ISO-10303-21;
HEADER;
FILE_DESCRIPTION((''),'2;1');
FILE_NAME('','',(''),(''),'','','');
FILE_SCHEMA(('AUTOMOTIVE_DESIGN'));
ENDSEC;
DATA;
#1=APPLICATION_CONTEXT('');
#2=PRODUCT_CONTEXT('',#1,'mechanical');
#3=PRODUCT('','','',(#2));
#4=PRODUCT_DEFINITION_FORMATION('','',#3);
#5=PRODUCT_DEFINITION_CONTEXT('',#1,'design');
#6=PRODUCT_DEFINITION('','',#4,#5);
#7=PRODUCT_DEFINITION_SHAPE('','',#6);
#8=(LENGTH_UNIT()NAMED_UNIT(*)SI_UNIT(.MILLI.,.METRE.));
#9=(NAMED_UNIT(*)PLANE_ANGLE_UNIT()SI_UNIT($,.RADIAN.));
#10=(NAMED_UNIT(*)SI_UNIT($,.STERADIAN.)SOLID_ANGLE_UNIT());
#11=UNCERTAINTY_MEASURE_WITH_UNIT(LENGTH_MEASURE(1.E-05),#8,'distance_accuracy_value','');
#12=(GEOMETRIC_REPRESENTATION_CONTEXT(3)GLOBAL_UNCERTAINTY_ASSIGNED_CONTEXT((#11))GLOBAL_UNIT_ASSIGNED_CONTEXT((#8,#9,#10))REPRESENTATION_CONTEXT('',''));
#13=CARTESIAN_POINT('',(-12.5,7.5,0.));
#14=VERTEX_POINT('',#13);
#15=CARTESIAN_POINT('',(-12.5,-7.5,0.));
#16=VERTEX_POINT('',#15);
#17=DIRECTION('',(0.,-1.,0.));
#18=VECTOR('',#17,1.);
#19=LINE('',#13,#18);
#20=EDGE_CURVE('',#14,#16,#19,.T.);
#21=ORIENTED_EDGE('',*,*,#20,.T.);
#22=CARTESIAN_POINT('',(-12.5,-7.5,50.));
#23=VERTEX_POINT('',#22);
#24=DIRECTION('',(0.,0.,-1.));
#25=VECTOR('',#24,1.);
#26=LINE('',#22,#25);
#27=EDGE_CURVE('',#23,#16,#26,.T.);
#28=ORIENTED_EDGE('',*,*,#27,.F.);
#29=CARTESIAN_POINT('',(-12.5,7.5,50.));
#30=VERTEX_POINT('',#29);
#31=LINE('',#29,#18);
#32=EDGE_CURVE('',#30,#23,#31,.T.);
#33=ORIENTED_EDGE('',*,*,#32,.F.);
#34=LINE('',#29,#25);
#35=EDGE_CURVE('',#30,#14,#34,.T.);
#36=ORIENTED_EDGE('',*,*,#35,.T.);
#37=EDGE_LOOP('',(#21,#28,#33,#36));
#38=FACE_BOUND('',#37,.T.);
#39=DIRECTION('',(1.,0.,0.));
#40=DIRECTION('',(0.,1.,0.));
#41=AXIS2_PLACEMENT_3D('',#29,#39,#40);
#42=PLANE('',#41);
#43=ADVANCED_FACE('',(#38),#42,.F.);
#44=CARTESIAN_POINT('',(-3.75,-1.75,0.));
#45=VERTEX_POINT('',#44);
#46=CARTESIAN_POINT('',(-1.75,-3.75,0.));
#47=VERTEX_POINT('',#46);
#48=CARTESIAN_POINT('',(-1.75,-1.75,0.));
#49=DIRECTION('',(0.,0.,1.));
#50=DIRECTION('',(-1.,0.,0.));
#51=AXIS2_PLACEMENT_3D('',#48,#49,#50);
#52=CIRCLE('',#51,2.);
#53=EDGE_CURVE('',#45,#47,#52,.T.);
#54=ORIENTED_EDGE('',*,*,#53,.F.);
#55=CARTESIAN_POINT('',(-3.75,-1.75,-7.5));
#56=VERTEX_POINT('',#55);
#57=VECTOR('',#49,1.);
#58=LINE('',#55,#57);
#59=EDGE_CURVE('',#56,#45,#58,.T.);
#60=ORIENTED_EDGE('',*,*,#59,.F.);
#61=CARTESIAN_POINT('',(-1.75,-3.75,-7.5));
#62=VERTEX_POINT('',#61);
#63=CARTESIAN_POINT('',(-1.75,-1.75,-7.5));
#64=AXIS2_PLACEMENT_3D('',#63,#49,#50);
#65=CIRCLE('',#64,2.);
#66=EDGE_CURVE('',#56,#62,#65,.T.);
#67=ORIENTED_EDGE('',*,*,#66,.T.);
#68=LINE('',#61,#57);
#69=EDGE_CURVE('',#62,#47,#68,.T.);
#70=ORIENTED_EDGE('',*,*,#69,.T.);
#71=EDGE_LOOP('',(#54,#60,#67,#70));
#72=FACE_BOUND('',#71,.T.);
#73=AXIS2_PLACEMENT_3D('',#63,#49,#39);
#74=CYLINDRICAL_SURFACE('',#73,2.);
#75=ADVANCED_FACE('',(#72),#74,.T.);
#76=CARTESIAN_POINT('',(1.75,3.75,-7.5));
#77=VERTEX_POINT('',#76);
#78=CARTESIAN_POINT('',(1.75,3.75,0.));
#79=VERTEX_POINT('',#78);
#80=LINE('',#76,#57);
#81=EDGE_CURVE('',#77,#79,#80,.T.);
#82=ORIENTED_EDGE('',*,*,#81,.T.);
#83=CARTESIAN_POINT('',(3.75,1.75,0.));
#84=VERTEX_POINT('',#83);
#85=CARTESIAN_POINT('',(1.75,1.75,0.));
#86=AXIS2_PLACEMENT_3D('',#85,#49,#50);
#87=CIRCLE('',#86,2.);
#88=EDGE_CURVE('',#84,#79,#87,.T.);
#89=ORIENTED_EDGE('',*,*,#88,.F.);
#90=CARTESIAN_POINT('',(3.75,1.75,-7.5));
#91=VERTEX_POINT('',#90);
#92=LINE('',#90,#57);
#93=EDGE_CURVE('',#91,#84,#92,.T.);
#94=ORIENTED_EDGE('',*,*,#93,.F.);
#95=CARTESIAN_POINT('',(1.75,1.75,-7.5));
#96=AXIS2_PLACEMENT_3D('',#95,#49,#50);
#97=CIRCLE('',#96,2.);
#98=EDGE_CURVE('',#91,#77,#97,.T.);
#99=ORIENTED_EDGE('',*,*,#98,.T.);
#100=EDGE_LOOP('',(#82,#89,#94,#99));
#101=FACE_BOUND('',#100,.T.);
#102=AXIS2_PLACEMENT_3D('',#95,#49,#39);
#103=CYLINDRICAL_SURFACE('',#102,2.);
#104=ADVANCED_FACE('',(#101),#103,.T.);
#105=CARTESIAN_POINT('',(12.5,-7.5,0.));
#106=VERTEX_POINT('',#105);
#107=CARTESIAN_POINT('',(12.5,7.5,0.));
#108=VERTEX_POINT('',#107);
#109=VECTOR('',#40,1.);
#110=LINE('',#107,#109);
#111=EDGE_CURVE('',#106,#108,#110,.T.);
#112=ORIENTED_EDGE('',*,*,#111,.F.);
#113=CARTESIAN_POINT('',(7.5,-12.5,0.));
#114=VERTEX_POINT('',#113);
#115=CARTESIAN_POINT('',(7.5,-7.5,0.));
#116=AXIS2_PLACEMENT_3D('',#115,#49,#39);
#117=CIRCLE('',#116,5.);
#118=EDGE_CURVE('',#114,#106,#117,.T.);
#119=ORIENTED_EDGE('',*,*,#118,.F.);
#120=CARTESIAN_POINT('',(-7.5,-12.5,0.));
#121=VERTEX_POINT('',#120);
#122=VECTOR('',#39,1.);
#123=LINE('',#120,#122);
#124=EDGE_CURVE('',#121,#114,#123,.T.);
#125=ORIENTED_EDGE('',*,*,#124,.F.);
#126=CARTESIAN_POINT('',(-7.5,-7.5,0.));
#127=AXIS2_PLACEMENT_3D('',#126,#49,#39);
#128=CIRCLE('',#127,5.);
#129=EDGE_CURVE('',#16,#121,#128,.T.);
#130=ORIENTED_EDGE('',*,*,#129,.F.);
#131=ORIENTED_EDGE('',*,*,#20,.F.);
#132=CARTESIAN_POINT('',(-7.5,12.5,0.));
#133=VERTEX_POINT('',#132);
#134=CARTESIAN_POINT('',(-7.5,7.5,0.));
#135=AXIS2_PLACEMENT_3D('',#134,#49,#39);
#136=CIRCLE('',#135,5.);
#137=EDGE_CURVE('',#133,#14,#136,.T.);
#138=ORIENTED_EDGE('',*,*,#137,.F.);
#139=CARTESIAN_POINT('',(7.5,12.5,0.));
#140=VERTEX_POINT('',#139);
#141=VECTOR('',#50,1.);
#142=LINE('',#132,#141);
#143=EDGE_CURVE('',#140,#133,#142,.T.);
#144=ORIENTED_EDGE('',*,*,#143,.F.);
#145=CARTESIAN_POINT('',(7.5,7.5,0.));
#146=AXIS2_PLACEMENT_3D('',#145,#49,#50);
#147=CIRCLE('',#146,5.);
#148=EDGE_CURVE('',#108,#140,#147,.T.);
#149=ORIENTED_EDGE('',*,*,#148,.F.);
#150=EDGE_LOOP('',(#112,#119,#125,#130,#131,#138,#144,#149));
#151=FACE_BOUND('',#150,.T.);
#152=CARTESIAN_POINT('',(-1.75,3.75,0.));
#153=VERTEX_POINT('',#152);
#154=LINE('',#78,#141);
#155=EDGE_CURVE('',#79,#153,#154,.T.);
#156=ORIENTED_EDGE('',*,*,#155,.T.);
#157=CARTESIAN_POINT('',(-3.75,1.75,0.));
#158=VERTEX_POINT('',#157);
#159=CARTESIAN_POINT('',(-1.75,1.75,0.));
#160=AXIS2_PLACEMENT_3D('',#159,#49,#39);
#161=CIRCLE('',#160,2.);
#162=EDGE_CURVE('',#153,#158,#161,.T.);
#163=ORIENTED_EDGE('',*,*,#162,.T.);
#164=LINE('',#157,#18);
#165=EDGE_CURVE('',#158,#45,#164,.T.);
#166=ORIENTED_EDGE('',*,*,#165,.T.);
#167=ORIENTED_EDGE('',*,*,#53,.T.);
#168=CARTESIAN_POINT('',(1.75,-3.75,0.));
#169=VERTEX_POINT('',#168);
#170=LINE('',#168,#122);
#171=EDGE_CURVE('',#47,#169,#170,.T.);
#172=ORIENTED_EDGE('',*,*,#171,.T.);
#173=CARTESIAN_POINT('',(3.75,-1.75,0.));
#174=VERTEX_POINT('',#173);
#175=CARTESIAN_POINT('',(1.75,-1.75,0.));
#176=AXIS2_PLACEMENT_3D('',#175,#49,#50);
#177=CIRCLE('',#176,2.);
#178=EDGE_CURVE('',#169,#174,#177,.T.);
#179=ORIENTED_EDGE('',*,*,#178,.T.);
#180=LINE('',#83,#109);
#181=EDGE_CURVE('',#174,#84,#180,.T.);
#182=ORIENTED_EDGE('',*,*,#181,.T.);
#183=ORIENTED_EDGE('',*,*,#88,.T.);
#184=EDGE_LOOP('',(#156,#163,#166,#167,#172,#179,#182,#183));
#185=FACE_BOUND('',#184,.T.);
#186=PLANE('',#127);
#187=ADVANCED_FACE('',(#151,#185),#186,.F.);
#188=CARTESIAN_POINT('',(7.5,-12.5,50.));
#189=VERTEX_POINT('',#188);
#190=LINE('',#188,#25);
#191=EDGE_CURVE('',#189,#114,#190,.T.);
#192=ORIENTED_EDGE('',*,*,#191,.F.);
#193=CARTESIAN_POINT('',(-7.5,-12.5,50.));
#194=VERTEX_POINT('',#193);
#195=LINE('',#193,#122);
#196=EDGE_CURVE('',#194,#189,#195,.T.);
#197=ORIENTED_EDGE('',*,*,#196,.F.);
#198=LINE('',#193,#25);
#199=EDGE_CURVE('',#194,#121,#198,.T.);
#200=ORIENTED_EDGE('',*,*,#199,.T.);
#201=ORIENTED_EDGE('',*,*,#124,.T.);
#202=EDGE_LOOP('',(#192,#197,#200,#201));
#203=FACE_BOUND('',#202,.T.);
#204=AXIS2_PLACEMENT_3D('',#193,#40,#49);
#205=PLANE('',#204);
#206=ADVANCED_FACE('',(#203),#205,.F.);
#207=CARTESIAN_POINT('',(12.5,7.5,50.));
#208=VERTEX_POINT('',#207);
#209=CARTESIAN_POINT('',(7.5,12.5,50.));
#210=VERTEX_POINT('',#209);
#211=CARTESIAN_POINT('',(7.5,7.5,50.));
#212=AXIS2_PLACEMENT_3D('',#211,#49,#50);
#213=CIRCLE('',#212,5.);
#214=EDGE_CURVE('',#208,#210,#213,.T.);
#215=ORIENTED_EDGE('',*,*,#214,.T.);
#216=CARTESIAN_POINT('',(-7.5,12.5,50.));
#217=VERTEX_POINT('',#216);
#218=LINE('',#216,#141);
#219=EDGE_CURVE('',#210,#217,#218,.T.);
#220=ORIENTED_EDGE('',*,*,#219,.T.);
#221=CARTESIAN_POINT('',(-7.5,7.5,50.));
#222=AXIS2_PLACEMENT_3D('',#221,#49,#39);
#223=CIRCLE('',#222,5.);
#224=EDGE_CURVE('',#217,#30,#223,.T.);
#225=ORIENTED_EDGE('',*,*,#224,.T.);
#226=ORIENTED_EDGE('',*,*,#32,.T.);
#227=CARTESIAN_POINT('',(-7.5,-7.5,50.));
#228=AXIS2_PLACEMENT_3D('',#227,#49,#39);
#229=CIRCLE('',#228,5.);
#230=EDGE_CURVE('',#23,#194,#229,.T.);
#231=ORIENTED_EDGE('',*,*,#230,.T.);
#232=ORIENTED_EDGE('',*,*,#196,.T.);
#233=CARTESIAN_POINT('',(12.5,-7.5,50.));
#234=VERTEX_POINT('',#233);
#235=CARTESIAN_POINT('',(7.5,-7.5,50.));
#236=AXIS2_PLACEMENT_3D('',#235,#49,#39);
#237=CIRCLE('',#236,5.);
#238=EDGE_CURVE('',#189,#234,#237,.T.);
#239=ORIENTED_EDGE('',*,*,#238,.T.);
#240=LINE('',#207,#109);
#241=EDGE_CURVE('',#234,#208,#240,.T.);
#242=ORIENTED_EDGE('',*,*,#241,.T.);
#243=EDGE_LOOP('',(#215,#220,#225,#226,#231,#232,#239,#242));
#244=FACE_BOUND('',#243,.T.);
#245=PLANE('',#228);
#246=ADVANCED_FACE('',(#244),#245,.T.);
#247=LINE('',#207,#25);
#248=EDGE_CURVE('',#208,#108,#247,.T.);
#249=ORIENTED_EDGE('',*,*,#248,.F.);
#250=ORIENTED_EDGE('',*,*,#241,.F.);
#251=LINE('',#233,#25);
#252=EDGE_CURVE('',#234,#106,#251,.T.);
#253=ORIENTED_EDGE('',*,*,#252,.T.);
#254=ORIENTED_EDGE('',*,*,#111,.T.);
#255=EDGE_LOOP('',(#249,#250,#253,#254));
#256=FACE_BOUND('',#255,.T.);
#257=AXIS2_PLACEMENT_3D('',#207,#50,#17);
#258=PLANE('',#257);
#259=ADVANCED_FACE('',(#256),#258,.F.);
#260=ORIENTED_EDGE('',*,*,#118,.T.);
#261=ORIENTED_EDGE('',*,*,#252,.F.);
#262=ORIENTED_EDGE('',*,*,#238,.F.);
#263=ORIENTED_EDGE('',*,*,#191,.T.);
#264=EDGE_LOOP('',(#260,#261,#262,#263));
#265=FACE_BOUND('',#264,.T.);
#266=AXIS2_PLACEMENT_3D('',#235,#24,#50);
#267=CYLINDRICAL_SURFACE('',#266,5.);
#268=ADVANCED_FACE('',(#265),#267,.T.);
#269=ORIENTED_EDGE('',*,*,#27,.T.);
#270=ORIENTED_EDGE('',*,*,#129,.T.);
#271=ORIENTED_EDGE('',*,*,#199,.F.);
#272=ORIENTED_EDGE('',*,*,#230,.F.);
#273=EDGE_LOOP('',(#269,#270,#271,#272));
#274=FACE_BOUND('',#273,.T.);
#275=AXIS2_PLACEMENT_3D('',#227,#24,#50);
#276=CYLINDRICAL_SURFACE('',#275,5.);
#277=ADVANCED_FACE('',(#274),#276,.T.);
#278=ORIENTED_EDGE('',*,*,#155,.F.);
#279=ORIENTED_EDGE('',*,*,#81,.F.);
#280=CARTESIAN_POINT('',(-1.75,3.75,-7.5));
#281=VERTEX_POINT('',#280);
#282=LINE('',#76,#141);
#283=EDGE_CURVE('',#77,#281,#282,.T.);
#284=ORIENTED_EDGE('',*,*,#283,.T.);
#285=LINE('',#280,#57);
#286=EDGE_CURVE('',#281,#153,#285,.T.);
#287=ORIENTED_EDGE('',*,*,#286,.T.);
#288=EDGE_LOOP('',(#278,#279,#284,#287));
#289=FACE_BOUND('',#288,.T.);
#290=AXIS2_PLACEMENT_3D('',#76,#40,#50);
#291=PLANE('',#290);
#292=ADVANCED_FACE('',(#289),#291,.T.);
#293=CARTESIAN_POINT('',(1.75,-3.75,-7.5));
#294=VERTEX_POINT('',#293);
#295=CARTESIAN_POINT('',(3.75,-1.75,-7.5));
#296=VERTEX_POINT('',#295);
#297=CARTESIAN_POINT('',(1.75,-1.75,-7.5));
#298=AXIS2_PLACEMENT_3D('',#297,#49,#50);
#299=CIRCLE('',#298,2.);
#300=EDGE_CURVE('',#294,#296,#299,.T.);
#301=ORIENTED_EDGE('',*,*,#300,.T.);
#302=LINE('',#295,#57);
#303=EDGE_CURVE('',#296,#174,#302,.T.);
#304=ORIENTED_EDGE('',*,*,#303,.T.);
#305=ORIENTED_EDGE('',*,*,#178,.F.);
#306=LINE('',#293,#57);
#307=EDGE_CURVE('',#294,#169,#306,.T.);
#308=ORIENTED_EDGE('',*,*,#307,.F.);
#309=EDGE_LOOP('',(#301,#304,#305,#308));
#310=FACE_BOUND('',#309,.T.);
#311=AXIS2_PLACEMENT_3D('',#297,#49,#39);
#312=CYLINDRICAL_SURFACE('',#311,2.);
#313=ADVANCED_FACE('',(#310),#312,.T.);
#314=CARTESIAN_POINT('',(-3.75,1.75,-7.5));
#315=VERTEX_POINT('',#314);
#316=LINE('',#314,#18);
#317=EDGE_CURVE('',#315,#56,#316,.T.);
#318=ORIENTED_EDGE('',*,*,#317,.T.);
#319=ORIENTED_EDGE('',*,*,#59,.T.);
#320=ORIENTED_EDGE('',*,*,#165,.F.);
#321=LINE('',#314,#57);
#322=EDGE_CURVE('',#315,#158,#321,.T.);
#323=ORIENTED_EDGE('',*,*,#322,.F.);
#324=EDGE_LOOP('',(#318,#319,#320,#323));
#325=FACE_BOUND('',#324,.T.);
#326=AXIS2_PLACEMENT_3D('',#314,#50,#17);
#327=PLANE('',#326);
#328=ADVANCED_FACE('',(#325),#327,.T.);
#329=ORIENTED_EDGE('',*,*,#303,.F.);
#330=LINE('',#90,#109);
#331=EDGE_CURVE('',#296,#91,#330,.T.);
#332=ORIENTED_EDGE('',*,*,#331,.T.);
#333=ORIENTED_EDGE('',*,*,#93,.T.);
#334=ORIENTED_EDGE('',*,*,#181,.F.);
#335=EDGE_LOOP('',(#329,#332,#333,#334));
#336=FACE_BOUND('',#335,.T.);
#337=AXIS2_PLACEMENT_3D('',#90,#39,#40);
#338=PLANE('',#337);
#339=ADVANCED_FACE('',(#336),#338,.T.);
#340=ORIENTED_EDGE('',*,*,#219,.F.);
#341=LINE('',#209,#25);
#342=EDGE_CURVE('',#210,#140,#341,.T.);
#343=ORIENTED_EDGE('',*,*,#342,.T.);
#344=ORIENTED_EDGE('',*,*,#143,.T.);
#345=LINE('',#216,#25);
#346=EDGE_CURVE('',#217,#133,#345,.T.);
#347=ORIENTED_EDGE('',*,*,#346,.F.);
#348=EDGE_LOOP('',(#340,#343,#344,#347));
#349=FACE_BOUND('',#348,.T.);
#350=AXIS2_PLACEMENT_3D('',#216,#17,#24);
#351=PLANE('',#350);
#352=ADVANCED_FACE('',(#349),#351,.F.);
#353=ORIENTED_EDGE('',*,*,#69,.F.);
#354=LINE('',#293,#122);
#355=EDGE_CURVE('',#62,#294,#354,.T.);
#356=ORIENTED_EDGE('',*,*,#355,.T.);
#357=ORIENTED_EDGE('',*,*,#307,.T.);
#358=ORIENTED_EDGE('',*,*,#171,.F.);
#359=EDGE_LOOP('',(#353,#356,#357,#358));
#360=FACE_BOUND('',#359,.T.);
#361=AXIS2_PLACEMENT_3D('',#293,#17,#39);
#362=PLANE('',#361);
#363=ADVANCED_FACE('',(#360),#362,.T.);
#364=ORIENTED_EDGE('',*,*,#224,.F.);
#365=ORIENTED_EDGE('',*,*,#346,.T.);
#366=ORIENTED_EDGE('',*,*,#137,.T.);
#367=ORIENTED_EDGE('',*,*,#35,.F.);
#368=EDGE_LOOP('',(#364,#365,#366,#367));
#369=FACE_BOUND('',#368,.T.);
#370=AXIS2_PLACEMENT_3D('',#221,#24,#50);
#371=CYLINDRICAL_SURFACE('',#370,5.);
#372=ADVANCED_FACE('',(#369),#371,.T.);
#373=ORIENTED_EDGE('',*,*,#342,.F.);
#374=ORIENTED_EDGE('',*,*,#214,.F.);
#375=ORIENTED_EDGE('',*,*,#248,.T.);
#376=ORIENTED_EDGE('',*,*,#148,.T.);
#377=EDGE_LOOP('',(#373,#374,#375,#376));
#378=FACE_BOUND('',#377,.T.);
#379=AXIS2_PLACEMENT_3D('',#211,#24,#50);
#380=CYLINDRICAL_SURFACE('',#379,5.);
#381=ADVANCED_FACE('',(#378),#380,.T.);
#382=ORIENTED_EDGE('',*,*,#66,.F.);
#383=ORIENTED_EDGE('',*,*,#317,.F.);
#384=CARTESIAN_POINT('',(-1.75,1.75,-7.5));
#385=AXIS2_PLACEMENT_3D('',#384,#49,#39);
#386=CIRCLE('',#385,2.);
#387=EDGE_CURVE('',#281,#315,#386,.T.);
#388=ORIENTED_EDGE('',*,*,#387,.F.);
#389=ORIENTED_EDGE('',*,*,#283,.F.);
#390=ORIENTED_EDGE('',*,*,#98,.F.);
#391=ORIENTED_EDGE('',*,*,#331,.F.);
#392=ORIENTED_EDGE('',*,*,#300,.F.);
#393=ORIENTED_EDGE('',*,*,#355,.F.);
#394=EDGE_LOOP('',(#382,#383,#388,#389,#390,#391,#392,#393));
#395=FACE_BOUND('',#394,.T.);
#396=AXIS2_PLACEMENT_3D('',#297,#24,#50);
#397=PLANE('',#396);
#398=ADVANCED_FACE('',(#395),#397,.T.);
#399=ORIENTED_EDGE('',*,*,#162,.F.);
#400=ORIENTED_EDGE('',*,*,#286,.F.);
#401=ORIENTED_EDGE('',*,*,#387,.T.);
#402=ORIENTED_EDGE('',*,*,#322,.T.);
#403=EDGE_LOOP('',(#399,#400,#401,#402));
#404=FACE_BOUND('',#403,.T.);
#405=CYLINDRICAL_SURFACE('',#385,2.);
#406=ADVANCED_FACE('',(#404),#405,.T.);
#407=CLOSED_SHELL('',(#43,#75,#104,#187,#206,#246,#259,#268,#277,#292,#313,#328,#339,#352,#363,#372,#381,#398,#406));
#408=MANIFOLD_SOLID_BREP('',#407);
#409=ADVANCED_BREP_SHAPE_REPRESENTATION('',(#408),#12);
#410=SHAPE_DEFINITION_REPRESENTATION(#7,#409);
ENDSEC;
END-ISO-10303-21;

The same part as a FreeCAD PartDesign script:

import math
import FreeCAD as App
import Part
import Sketcher

doc = App.newDocument("Part")
body = doc.addObject("PartDesign::Body", "Body")

# Sketch on XY plane
sketch1 = doc.addObject("Sketcher::SketchObject", "Sketch")
body.addObject(sketch1)
sketch1.AttachmentSupport = (doc.XY_Plane, [""])
sketch1.MapMode = "FlatFace"
sketch1.addGeometry([
    Part.LineSegment(App.Vector(7.5, 12.5, 0), App.Vector(-7.5, 12.5, 0)),  # 0
    Part.ArcOfCircle(Part.Circle(App.Vector(-7.5, 7.5, 0), App.Vector(0, 0, 1), 5), math.radians(90), math.radians(180)),  # 1
    Part.LineSegment(App.Vector(-12.5, 7.5, 0), App.Vector(-12.5, -7.5, 0)),  # 2
    Part.ArcOfCircle(Part.Circle(App.Vector(-7.5, -7.5, 0), App.Vector(0, 0, 1), 5), math.radians(180), math.radians(270)),  # 3
    Part.LineSegment(App.Vector(-7.5, -12.5, 0), App.Vector(7.5, -12.5, 0)),  # 4
    Part.ArcOfCircle(Part.Circle(App.Vector(7.5, -7.5, 0), App.Vector(0, 0, 1), 5), math.radians(-90), math.radians(0)),  # 5
    Part.LineSegment(App.Vector(12.5, -7.5, 0), App.Vector(12.5, 7.5, 0)),  # 6
    Part.ArcOfCircle(Part.Circle(App.Vector(7.5, 7.5, 0), App.Vector(0, 0, 1), 5), math.radians(0), math.radians(90)),  # 7
], False)
sketch1.addConstraint([
    Sketcher.Constraint("Tangent", 0, 2, 1, 1),
    Sketcher.Constraint("Tangent", 1, 2, 2, 1),
    Sketcher.Constraint("Tangent", 2, 2, 3, 1),
    Sketcher.Constraint("Tangent", 3, 2, 4, 1),
    Sketcher.Constraint("Tangent", 4, 2, 5, 1),
    Sketcher.Constraint("Tangent", 5, 2, 6, 1),
    Sketcher.Constraint("Tangent", 6, 2, 7, 1),
    Sketcher.Constraint("Tangent", 7, 2, 0, 1),
    Sketcher.Constraint("Horizontal", 0),
    Sketcher.Constraint("Vertical", 2),
    Sketcher.Constraint("Horizontal", 4),
    Sketcher.Constraint("Vertical", 6),
    Sketcher.Constraint("Equal", 1, 3),
    Sketcher.Constraint("Equal", 3, 5),
    Sketcher.Constraint("Equal", 5, 7),
    Sketcher.Constraint("Symmetric", 1, 3, 5, 3, -1, 1),
    Sketcher.Constraint("Equal", 4, 2),
    Sketcher.Constraint("Radius", 1, 5.0),
    Sketcher.Constraint("DistanceX", 0, 2, 0, 1, 15.0),
])
pad1 = doc.addObject("PartDesign::Pad", "Pad")
body.addObject(pad1)
pad1.Profile = sketch1
pad1.Length = 50

# Sketch on XY plane
sketch2 = doc.addObject("Sketcher::SketchObject", "Sketch001")
body.addObject(sketch2)
sketch2.AttachmentSupport = (doc.XY_Plane, [""])
sketch2.MapMode = "FlatFace"
sketch2.addGeometry([
    Part.LineSegment(App.Vector(1.75, 3.75, 0), App.Vector(-1.75, 3.75, 0)),  # 0
    Part.ArcOfCircle(Part.Circle(App.Vector(-1.75, 1.75, 0), App.Vector(0, 0, 1), 2), math.radians(90), math.radians(180)),  # 1
    Part.LineSegment(App.Vector(-3.75, 1.75, 0), App.Vector(-3.75, -1.75, 0)),  # 2
    Part.ArcOfCircle(Part.Circle(App.Vector(-1.75, -1.75, 0), App.Vector(0, 0, 1), 2), math.radians(-180), math.radians(-90)),  # 3
    Part.LineSegment(App.Vector(-1.75, -3.75, 0), App.Vector(1.75, -3.75, 0)),  # 4
    Part.ArcOfCircle(Part.Circle(App.Vector(1.75, -1.75, 0), App.Vector(0, 0, 1), 2), math.radians(-90), math.radians(0)),  # 5
    Part.LineSegment(App.Vector(3.75, -1.75, 0), App.Vector(3.75, 1.75, 0)),  # 6
    Part.ArcOfCircle(Part.Circle(App.Vector(1.75, 1.75, 0), App.Vector(0, 0, 1), 2), math.radians(0), math.radians(90)),  # 7
], False)
sketch2.addConstraint([
    Sketcher.Constraint("Tangent", 0, 2, 1, 1),
    Sketcher.Constraint("Tangent", 1, 2, 2, 1),
    Sketcher.Constraint("Tangent", 2, 2, 3, 1),
    Sketcher.Constraint("Tangent", 3, 2, 4, 1),
    Sketcher.Constraint("Tangent", 4, 2, 5, 1),
    Sketcher.Constraint("Tangent", 5, 2, 6, 1),
    Sketcher.Constraint("Tangent", 6, 2, 7, 1),
    Sketcher.Constraint("Tangent", 7, 2, 0, 1),
    Sketcher.Constraint("Horizontal", 0),
    Sketcher.Constraint("Vertical", 2),
    Sketcher.Constraint("Horizontal", 4),
    Sketcher.Constraint("Vertical", 6),
    Sketcher.Constraint("Equal", 1, 3),
    Sketcher.Constraint("Equal", 3, 5),
    Sketcher.Constraint("Equal", 5, 7),
    Sketcher.Constraint("Symmetric", 1, 3, 5, 3, -1, 1),
    Sketcher.Constraint("Equal", 4, 2),
    Sketcher.Constraint("Radius", 1, 2.0),
    Sketcher.Constraint("DistanceX", 0, 2, 0, 1, 3.5),
])
pad2 = doc.addObject("PartDesign::Pad", "Pad001")
body.addObject(pad2)
pad2.Profile = sketch2
pad2.Length = 7.5
pad2.Reversed = True

doc.recompute()
